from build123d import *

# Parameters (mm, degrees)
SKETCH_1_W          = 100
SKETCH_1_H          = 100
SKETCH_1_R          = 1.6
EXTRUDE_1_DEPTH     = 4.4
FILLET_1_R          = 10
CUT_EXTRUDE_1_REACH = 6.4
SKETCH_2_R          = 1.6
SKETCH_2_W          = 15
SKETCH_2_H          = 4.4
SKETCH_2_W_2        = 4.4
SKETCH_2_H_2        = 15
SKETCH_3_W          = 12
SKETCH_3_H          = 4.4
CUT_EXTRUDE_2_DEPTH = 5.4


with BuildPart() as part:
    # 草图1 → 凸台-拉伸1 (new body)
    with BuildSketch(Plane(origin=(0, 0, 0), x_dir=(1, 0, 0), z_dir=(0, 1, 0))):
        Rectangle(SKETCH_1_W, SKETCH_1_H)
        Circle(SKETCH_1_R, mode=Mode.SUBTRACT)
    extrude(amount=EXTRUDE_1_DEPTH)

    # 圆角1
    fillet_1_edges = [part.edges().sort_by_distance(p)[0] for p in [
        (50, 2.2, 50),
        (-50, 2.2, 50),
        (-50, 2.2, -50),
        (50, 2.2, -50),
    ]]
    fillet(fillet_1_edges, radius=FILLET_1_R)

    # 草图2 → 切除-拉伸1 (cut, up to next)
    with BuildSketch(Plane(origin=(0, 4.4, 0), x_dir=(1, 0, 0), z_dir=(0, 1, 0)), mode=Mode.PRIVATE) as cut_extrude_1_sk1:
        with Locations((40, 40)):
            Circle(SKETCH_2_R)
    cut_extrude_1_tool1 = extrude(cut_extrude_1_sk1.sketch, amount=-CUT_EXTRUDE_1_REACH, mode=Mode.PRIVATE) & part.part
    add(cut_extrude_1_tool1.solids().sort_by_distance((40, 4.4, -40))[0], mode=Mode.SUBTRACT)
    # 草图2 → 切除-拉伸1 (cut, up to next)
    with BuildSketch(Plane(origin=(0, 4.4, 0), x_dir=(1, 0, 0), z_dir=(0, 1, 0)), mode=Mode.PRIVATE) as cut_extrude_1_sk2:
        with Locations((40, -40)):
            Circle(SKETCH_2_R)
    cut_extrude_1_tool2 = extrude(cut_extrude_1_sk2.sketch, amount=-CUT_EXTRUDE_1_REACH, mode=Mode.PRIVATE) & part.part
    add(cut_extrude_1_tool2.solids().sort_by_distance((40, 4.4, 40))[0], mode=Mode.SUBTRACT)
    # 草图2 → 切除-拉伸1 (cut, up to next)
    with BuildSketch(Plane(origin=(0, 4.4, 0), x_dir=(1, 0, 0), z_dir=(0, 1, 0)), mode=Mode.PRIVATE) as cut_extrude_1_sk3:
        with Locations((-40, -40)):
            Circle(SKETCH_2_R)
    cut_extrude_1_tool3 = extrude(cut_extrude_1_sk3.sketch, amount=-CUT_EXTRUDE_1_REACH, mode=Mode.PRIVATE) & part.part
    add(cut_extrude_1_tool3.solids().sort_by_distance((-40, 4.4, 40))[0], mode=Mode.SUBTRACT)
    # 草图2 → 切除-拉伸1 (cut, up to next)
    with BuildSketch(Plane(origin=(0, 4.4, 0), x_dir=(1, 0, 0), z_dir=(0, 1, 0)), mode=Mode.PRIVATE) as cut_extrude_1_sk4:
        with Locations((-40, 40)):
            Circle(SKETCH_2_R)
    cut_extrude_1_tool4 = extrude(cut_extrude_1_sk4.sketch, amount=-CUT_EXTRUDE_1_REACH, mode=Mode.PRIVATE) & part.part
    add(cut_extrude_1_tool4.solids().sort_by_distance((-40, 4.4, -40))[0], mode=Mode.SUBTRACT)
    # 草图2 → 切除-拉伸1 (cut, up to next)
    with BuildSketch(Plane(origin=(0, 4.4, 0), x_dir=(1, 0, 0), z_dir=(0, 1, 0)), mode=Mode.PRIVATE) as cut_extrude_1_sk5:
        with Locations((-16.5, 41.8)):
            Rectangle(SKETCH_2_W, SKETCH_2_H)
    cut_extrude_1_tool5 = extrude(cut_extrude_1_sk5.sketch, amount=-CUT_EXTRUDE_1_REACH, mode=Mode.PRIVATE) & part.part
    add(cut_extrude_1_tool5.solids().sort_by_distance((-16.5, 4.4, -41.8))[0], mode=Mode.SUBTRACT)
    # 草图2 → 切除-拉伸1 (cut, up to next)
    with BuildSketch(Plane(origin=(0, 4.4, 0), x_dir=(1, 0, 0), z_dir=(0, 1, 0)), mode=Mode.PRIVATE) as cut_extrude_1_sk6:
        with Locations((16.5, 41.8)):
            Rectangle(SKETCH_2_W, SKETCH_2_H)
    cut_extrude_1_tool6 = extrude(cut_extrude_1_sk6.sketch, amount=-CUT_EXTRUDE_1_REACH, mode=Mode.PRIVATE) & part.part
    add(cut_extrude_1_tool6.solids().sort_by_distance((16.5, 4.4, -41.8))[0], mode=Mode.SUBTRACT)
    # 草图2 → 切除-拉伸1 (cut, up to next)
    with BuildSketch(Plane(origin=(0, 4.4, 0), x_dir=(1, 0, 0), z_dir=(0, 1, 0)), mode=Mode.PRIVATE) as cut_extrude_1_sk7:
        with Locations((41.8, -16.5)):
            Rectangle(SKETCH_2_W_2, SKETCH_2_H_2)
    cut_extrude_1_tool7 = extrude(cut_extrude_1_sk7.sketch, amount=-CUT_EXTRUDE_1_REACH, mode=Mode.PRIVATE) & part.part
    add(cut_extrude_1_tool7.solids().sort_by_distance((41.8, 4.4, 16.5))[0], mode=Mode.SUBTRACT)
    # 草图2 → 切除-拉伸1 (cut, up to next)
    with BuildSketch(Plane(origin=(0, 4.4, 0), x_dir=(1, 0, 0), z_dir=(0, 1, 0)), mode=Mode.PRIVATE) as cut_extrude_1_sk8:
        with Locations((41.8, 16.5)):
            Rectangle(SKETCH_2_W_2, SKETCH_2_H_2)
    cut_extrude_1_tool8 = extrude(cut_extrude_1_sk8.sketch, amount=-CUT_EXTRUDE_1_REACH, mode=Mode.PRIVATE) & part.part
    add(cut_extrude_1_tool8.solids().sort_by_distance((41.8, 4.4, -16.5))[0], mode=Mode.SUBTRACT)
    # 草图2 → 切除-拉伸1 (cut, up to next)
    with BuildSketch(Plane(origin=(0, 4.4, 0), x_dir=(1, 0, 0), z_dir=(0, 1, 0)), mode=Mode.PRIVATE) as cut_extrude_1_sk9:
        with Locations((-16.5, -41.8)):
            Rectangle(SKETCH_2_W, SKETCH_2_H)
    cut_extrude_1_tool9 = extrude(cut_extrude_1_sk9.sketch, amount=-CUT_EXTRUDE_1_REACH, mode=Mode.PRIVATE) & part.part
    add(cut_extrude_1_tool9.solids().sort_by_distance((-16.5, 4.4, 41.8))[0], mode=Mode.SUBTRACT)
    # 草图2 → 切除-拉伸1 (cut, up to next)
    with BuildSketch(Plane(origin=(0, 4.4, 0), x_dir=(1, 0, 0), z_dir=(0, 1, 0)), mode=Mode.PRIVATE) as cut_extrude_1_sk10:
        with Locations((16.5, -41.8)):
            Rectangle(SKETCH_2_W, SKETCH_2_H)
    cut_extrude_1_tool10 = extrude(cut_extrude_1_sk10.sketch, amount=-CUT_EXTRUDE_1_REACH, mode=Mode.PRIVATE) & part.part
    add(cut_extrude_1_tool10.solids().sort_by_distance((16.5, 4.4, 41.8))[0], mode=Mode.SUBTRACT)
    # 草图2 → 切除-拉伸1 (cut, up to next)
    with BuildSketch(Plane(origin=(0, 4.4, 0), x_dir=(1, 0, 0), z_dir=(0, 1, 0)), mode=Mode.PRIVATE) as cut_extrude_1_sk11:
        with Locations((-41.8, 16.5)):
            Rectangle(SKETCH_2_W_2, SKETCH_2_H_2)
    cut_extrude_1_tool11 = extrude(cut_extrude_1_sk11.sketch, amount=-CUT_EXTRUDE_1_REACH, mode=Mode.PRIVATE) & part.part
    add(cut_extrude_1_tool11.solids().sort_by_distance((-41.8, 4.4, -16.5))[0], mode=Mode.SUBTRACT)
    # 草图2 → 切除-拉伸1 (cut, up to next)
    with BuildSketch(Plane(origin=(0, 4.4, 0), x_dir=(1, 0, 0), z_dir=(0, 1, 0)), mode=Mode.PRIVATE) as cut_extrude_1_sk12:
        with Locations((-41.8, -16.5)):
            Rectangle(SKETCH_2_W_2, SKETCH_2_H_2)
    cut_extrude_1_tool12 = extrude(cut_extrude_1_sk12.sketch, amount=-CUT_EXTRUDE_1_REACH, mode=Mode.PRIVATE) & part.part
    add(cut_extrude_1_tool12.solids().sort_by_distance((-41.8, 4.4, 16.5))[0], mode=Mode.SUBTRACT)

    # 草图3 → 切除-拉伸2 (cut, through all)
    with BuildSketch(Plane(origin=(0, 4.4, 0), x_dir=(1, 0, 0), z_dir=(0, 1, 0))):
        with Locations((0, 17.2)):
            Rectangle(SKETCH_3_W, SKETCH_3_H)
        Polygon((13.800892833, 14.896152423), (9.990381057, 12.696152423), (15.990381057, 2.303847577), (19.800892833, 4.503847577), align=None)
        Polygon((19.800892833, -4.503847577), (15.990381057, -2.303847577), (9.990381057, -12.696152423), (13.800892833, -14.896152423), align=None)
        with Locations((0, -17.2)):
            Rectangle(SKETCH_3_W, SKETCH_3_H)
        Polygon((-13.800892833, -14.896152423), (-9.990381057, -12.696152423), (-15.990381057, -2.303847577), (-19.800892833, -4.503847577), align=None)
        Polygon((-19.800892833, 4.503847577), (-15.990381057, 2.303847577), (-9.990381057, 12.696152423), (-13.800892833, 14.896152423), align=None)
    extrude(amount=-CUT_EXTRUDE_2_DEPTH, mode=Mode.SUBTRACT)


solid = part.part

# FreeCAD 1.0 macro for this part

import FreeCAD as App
import Part
import Sketcher
Q = App.Units.Quantity


def edges_at(feature, points):
    """Names of the edges that pass closest to the given points."""
    edges = feature.Shape.Edges
    near = lambda p: min(range(len(edges)), key=lambda i: edges[i].distToShape(Part.Vertex(*p))[0])
    return sorted({f"Edge{near(p) + 1}" for p in points})


def add_polygon(sketch, points):
    """Adds a closed chain of lines whose ends are joined by coincident constraints."""
    first, n = sketch.GeometryCount, len(points)
    for a, b in zip(points, points[1:] + points[:1]):
        sketch.addGeometry(Part.LineSegment(App.Vector(*a, 0), App.Vector(*b, 0)), False)
    for i in range(n):
        sketch.addConstraint(Sketcher.Constraint("Coincident", first + i, 2, first + (i + 1) % n, 1))

doc = App.newDocument("Part")
params = doc.addObject("Spreadsheet::Sheet", "Params")
for row, (alias, value) in enumerate([
    ("sketch1_diameter", "3.2 mm"),
    ("sketch1_width", "100 mm"),
    ("pad1_length", "4.4 mm"),
    ("fillet_radius", "10 mm"),
    ("sketch2_diameter", "3.2 mm"),
    ("sketch3_diameter", "3.2 mm"),
    ("sketch4_diameter", "3.2 mm"),
    ("sketch5_diameter", "3.2 mm"),
    ("sketch6_width", "15 mm"),
    ("sketch6_height", "4.4 mm"),
    ("sketch7_width", "15 mm"),
    ("sketch7_height", "4.4 mm"),
    ("sketch8_height", "15 mm"),
    ("sketch8_width", "4.4 mm"),
    ("sketch9_height", "15 mm"),
    ("sketch9_width", "4.4 mm"),
    ("sketch10_width", "15 mm"),
    ("sketch10_height", "4.4 mm"),
    ("sketch11_width", "15 mm"),
    ("sketch11_height", "4.4 mm"),
    ("sketch12_height", "15 mm"),
    ("sketch12_width", "4.4 mm"),
    ("sketch13_height", "15 mm"),
    ("sketch13_width", "4.4 mm"),
    ("sketch14_width", "12 mm"),
    ("sketch14_length", "12 mm"),
    ("sketch14_height", "4.4 mm"),
    ("sketch14_length2", "4.4 mm"),
], start=1):
    params.set(f"A{row}", alias)
    params.set(f"B{row}", "=" + value)
    params.setAlias(f"B{row}", alias)

body = doc.addObject("PartDesign::Body", "Body")

sketch1 = body.newObject("Sketcher::SketchObject", "Sketch")
sketch1.AttachmentSupport = (doc.getObject("XZ_Plane"), [""])
sketch1.MapMode = "FlatFace"
add_polygon(sketch1, [(-50, -50), (-50, 50), (50, 50), (50, -50)])
sketch1.addGeometry(Part.Circle(App.Vector(0, 0, 0), App.Vector(0, 0, 1), 1.6), False)
sketch1.addConstraint(Sketcher.Constraint("Vertical", 0))
sketch1.addConstraint(Sketcher.Constraint("Horizontal", 1))
sketch1.addConstraint(Sketcher.Constraint("Vertical", 2))
sketch1.addConstraint(Sketcher.Constraint("Horizontal", 3))
sketch1.addConstraint(Sketcher.Constraint("Coincident", 4, 3, -1, 1))
sketch1.addConstraint(Sketcher.Constraint("Symmetric", 0, 2, 2, 2, -1, 1))
sketch1.addConstraint(Sketcher.Constraint("Equal", 3, 0))
sketch1.addConstraint(Sketcher.Constraint("Diameter", 4, Q("3.2 mm")))
sketch1.addConstraint(Sketcher.Constraint("DistanceX", 1, 1, 1, 2, Q("100 mm")))
sketch1.setExpression("Constraints[11]", "Params.sketch1_diameter")
sketch1.setExpression("Constraints[12]", "Params.sketch1_width")
pad1 = body.newObject("PartDesign::Pad", "Pad")
pad1.Profile = sketch1
pad1.setExpression("Length", "Params.pad1_length")
pad1.Reversed = True
doc.recompute()

fillet = body.newObject("PartDesign::Fillet", "Fillet")
fillet.Base = (pad1, edges_at(pad1, [
    (50, 2.2, 50),
    (-50, 2.2, 50),
    (-50, 2.2, -50),
    (50, 2.2, -50),
]))
fillet.setExpression("Radius", "Params.fillet_radius")

sketch2 = body.newObject("Sketcher::SketchObject", "Sketch001")
sketch2.AttachmentSupport = (doc.getObject("XZ_Plane"), [""])
sketch2.MapMode = "FlatFace"
sketch2.AttachmentOffset = App.Placement(App.Vector(0, 0, -4.4), App.Rotation())
sketch2.addGeometry(Part.Circle(App.Vector(40, -40, 0), App.Vector(0, 0, 1), 1.6), False)
sketch2.addConstraint(Sketcher.Constraint("Diameter", 0, Q("3.2 mm")))
sketch2.addConstraint(Sketcher.Constraint("DistanceX", -1, 1, 0, 3, Q("40 mm")))
sketch2.addConstraint(Sketcher.Constraint("DistanceY", 0, 3, -1, 1, Q("40 mm")))
sketch2.setExpression("Constraints[0]", "Params.sketch2_diameter")
pocket1 = body.newObject("PartDesign::Pocket", "Pocket")
pocket1.Profile = sketch2
pocket1.Type = "UpToFirst"
pocket1.Reversed = True

sketch3 = body.newObject("Sketcher::SketchObject", "Sketch002")
sketch3.AttachmentSupport = (doc.getObject("XZ_Plane"), [""])
sketch3.MapMode = "FlatFace"
sketch3.AttachmentOffset = App.Placement(App.Vector(0, 0, -4.4), App.Rotation())
sketch3.addGeometry(Part.Circle(App.Vector(40, 40, 0), App.Vector(0, 0, 1), 1.6), False)
sketch3.addConstraint(Sketcher.Constraint("Diameter", 0, Q("3.2 mm")))
sketch3.addConstraint(Sketcher.Constraint("DistanceX", -1, 1, 0, 3, Q("40 mm")))
sketch3.addConstraint(Sketcher.Constraint("DistanceY", -1, 1, 0, 3, Q("40 mm")))
sketch3.setExpression("Constraints[0]", "Params.sketch3_diameter")
pocket2 = body.newObject("PartDesign::Pocket", "Pocket001")
pocket2.Profile = sketch3
pocket2.Type = "UpToFirst"
pocket2.Reversed = True

sketch4 = body.newObject("Sketcher::SketchObject", "Sketch003")
sketch4.AttachmentSupport = (doc.getObject("XZ_Plane"), [""])
sketch4.MapMode = "FlatFace"
sketch4.AttachmentOffset = App.Placement(App.Vector(0, 0, -4.4), App.Rotation())
sketch4.addGeometry(Part.Circle(App.Vector(-40, 40, 0), App.Vector(0, 0, 1), 1.6), False)
sketch4.addConstraint(Sketcher.Constraint("Diameter", 0, Q("3.2 mm")))
sketch4.addConstraint(Sketcher.Constraint("DistanceX", 0, 3, -1, 1, Q("40 mm")))
sketch4.addConstraint(Sketcher.Constraint("DistanceY", -1, 1, 0, 3, Q("40 mm")))
sketch4.setExpression("Constraints[0]", "Params.sketch4_diameter")
pocket3 = body.newObject("PartDesign::Pocket", "Pocket002")
pocket3.Profile = sketch4
pocket3.Type = "UpToFirst"
pocket3.Reversed = True

sketch5 = body.newObject("Sketcher::SketchObject", "Sketch004")
sketch5.AttachmentSupport = (doc.getObject("XZ_Plane"), [""])
sketch5.MapMode = "FlatFace"
sketch5.AttachmentOffset = App.Placement(App.Vector(0, 0, -4.4), App.Rotation())
sketch5.addGeometry(Part.Circle(App.Vector(-40, -40, 0), App.Vector(0, 0, 1), 1.6), False)
sketch5.addConstraint(Sketcher.Constraint("Diameter", 0, Q("3.2 mm")))
sketch5.addConstraint(Sketcher.Constraint("DistanceX", 0, 3, -1, 1, Q("40 mm")))
sketch5.addConstraint(Sketcher.Constraint("DistanceY", 0, 3, -1, 1, Q("40 mm")))
sketch5.setExpression("Constraints[0]", "Params.sketch5_diameter")
pocket4 = body.newObject("PartDesign::Pocket", "Pocket003")
pocket4.Profile = sketch5
pocket4.Type = "UpToFirst"
pocket4.Reversed = True

sketch6 = body.newObject("Sketcher::SketchObject", "Sketch005")
sketch6.AttachmentSupport = (doc.getObject("XZ_Plane"), [""])
sketch6.MapMode = "FlatFace"
sketch6.AttachmentOffset = App.Placement(App.Vector(0, 0, -4.4), App.Rotation())
add_polygon(sketch6, [(-24, -44), (-24, -39.6), (-9, -39.6), (-9, -44)])
sketch6.addConstraint(Sketcher.Constraint("Vertical", 0))
sketch6.addConstraint(Sketcher.Constraint("Horizontal", 1))
sketch6.addConstraint(Sketcher.Constraint("Vertical", 2))
sketch6.addConstraint(Sketcher.Constraint("Horizontal", 3))
sketch6.addConstraint(Sketcher.Constraint("DistanceX", 1, 1, 1, 2, Q("15 mm")))
sketch6.addConstraint(Sketcher.Constraint("DistanceY", 0, 1, 0, 2, Q("4.4 mm")))
sketch6.addConstraint(Sketcher.Constraint("DistanceX", 0, 2, -1, 1, Q("24 mm")))
sketch6.addConstraint(Sketcher.Constraint("DistanceY", 2, 2, -1, 1, Q("44 mm")))
sketch6.setExpression("Constraints[8]", "Params.sketch6_width")
sketch6.setExpression("Constraints[9]", "Params.sketch6_height")
pocket5 = body.newObject("PartDesign::Pocket", "Pocket004")
pocket5.Profile = sketch6
pocket5.Type = "UpToFirst"
pocket5.Reversed = True

sketch7 = body.newObject("Sketcher::SketchObject", "Sketch006")
sketch7.AttachmentSupport = (doc.getObject("XZ_Plane"), [""])
sketch7.MapMode = "FlatFace"
sketch7.AttachmentOffset = App.Placement(App.Vector(0, 0, -4.4), App.Rotation())
add_polygon(sketch7, [(9, -44), (9, -39.6), (24, -39.6), (24, -44)])
sketch7.addConstraint(Sketcher.Constraint("Vertical", 0))
sketch7.addConstraint(Sketcher.Constraint("Horizontal", 1))
sketch7.addConstraint(Sketcher.Constraint("Vertical", 2))
sketch7.addConstraint(Sketcher.Constraint("Horizontal", 3))
sketch7.addConstraint(Sketcher.Constraint("DistanceX", 1, 1, 1, 2, Q("15 mm")))
sketch7.addConstraint(Sketcher.Constraint("DistanceY", 0, 1, 0, 2, Q("4.4 mm")))
sketch7.addConstraint(Sketcher.Constraint("DistanceX", -1, 1, 0, 2, Q("9 mm")))
sketch7.addConstraint(Sketcher.Constraint("DistanceY", 2, 2, -1, 1, Q("44 mm")))
sketch7.setExpression("Constraints[8]", "Params.sketch7_width")
sketch7.setExpression("Constraints[9]", "Params.sketch7_height")
pocket6 = body.newObject("PartDesign::Pocket", "Pocket005")
pocket6.Profile = sketch7
pocket6.Type = "UpToFirst"
pocket6.Reversed = True

sketch8 = body.newObject("Sketcher::SketchObject", "Sketch007")
sketch8.AttachmentSupport = (doc.getObject("XZ_Plane"), [""])
sketch8.MapMode = "FlatFace"
sketch8.AttachmentOffset = App.Placement(App.Vector(0, 0, -4.4), App.Rotation())
add_polygon(sketch8, [(39.6, 9), (39.6, 24), (44, 24), (44, 9)])
sketch8.addConstraint(Sketcher.Constraint("Vertical", 0))
sketch8.addConstraint(Sketcher.Constraint("Horizontal", 1))
sketch8.addConstraint(Sketcher.Constraint("Vertical", 2))
sketch8.addConstraint(Sketcher.Constraint("Horizontal", 3))
sketch8.addConstraint(Sketcher.Constraint("DistanceY", 0, 1, 0, 2, Q("15 mm")))
sketch8.addConstraint(Sketcher.Constraint("DistanceX", 1, 1, 1, 2, Q("4.4 mm")))
sketch8.addConstraint(Sketcher.Constraint("DistanceY", -1, 1, 0, 2, Q("24 mm")))
sketch8.addConstraint(Sketcher.Constraint("DistanceX", -1, 1, 1, 2, Q("44 mm")))
sketch8.setExpression("Constraints[8]", "Params.sketch8_height")
sketch8.setExpression("Constraints[9]", "Params.sketch8_width")
pocket7 = body.newObject("PartDesign::Pocket", "Pocket006")
pocket7.Profile = sketch8
pocket7.Type = "UpToFirst"
pocket7.Reversed = True

sketch9 = body.newObject("Sketcher::SketchObject", "Sketch008")
sketch9.AttachmentSupport = (doc.getObject("XZ_Plane"), [""])
sketch9.MapMode = "FlatFace"
sketch9.AttachmentOffset = App.Placement(App.Vector(0, 0, -4.4), App.Rotation())
add_polygon(sketch9, [(39.6, -24), (39.6, -9), (44, -9), (44, -24)])
sketch9.addConstraint(Sketcher.Constraint("Vertical", 0))
sketch9.addConstraint(Sketcher.Constraint("Horizontal", 1))
sketch9.addConstraint(Sketcher.Constraint("Vertical", 2))
sketch9.addConstraint(Sketcher.Constraint("Horizontal", 3))
sketch9.addConstraint(Sketcher.Constraint("DistanceY", 0, 1, 0, 2, Q("15 mm")))
sketch9.addConstraint(Sketcher.Constraint("DistanceX", 1, 1, 1, 2, Q("4.4 mm")))
sketch9.addConstraint(Sketcher.Constraint("DistanceY", 0, 2, -1, 1, Q("9 mm")))
sketch9.addConstraint(Sketcher.Constraint("DistanceX", -1, 1, 1, 2, Q("44 mm")))
sketch9.setExpression("Constraints[8]", "Params.sketch9_height")
sketch9.setExpression("Constraints[9]", "Params.sketch9_width")
pocket8 = body.newObject("PartDesign::Pocket", "Pocket007")
pocket8.Profile = sketch9
pocket8.Type = "UpToFirst"
pocket8.Reversed = True

sketch10 = body.newObject("Sketcher::SketchObject", "Sketch009")
sketch10.AttachmentSupport = (doc.getObject("XZ_Plane"), [""])
sketch10.MapMode = "FlatFace"
sketch10.AttachmentOffset = App.Placement(App.Vector(0, 0, -4.4), App.Rotation())
add_polygon(sketch10, [(-24, 39.6), (-24, 44), (-9, 44), (-9, 39.6)])
sketch10.addConstraint(Sketcher.Constraint("Vertical", 0))
sketch10.addConstraint(Sketcher.Constraint("Horizontal", 1))
sketch10.addConstraint(Sketcher.Constraint("Vertical", 2))
sketch10.addConstraint(Sketcher.Constraint("Horizontal", 3))
sketch10.addConstraint(Sketcher.Constraint("DistanceX", 1, 1, 1, 2, Q("15 mm")))
sketch10.addConstraint(Sketcher.Constraint("DistanceY", 0, 1, 0, 2, Q("4.4 mm")))
sketch10.addConstraint(Sketcher.Constraint("DistanceX", 0, 2, -1, 1, Q("24 mm")))
sketch10.addConstraint(Sketcher.Constraint("DistanceY", -1, 1, 0, 2, Q("44 mm")))
sketch10.setExpression("Constraints[8]", "Params.sketch10_width")
sketch10.setExpression("Constraints[9]", "Params.sketch10_height")
pocket9 = body.newObject("PartDesign::Pocket", "Pocket008")
pocket9.Profile = sketch10
pocket9.Type = "UpToFirst"
pocket9.Reversed = True

sketch11 = body.newObject("Sketcher::SketchObject", "Sketch010")
sketch11.AttachmentSupport = (doc.getObject("XZ_Plane"), [""])
sketch11.MapMode = "FlatFace"
sketch11.AttachmentOffset = App.Placement(App.Vector(0, 0, -4.4), App.Rotation())
add_polygon(sketch11, [(9, 39.6), (9, 44), (24, 44), (24, 39.6)])
sketch11.addConstraint(Sketcher.Constraint("Vertical", 0))
sketch11.addConstraint(Sketcher.Constraint("Horizontal", 1))
sketch11.addConstraint(Sketcher.Constraint("Vertical", 2))
sketch11.addConstraint(Sketcher.Constraint("Horizontal", 3))
sketch11.addConstraint(Sketcher.Constraint("DistanceX", 1, 1, 1, 2, Q("15 mm")))
sketch11.addConstraint(Sketcher.Constraint("DistanceY", 0, 1, 0, 2, Q("4.4 mm")))
sketch11.addConstraint(Sketcher.Constraint("DistanceX", -1, 1, 0, 2, Q("9 mm")))
sketch11.addConstraint(Sketcher.Constraint("DistanceY", -1, 1, 0, 2, Q("44 mm")))
sketch11.setExpression("Constraints[8]", "Params.sketch11_width")
sketch11.setExpression("Constraints[9]", "Params.sketch11_height")
pocket10 = body.newObject("PartDesign::Pocket", "Pocket009")
pocket10.Profile = sketch11
pocket10.Type = "UpToFirst"
pocket10.Reversed = True

sketch12 = body.newObject("Sketcher::SketchObject", "Sketch011")
sketch12.AttachmentSupport = (doc.getObject("XZ_Plane"), [""])
sketch12.MapMode = "FlatFace"
sketch12.AttachmentOffset = App.Placement(App.Vector(0, 0, -4.4), App.Rotation())
add_polygon(sketch12, [(-44, -24), (-44, -9), (-39.6, -9), (-39.6, -24)])
sketch12.addConstraint(Sketcher.Constraint("Vertical", 0))
sketch12.addConstraint(Sketcher.Constraint("Horizontal", 1))
sketch12.addConstraint(Sketcher.Constraint("Vertical", 2))
sketch12.addConstraint(Sketcher.Constraint("Horizontal", 3))
sketch12.addConstraint(Sketcher.Constraint("DistanceY", 0, 1, 0, 2, Q("15 mm")))
sketch12.addConstraint(Sketcher.Constraint("DistanceX", 1, 1, 1, 2, Q("4.4 mm")))
sketch12.addConstraint(Sketcher.Constraint("DistanceX", 0, 2, -1, 1, Q("44 mm")))
sketch12.addConstraint(Sketcher.Constraint("DistanceY", 0, 2, -1, 1, Q("9 mm")))
sketch12.setExpression("Constraints[8]", "Params.sketch12_height")
sketch12.setExpression("Constraints[9]", "Params.sketch12_width")
pocket11 = body.newObject("PartDesign::Pocket", "Pocket010")
pocket11.Profile = sketch12
pocket11.Type = "UpToFirst"
pocket11.Reversed = True

sketch13 = body.newObject("Sketcher::SketchObject", "Sketch012")
sketch13.AttachmentSupport = (doc.getObject("XZ_Plane"), [""])
sketch13.MapMode = "FlatFace"
sketch13.AttachmentOffset = App.Placement(App.Vector(0, 0, -4.4), App.Rotation())
add_polygon(sketch13, [(-44, 9), (-44, 24), (-39.6, 24), (-39.6, 9)])
sketch13.addConstraint(Sketcher.Constraint("Vertical", 0))
sketch13.addConstraint(Sketcher.Constraint("Horizontal", 1))
sketch13.addConstraint(Sketcher.Constraint("Vertical", 2))
sketch13.addConstraint(Sketcher.Constraint("Horizontal", 3))
sketch13.addConstraint(Sketcher.Constraint("DistanceY", 0, 1, 0, 2, Q("15 mm")))
sketch13.addConstraint(Sketcher.Constraint("DistanceX", 1, 1, 1, 2, Q("4.4 mm")))
sketch13.addConstraint(Sketcher.Constraint("DistanceX", 0, 2, -1, 1, Q("44 mm")))
sketch13.addConstraint(Sketcher.Constraint("DistanceY", -1, 1, 0, 2, Q("24 mm")))
sketch13.setExpression("Constraints[8]", "Params.sketch13_height")
sketch13.setExpression("Constraints[9]", "Params.sketch13_width")
pocket12 = body.newObject("PartDesign::Pocket", "Pocket011")
pocket12.Profile = sketch13
pocket12.Type = "UpToFirst"
pocket12.Reversed = True

sketch14 = body.newObject("Sketcher::SketchObject", "Sketch013")
sketch14.AttachmentSupport = (doc.getObject("XZ_Plane"), [""])
sketch14.MapMode = "FlatFace"
sketch14.AttachmentOffset = App.Placement(App.Vector(0, 0, -4.4), App.Rotation())
add_polygon(sketch14, [(-6, -19.4), (-6, -15), (6, -15), (6, -19.4)])
add_polygon(sketch14, [(13.8, -14.9), (10, -12.7), (16, -2.3), (19.8, -4.5)])
add_polygon(sketch14, [(19.8, 4.5), (16, 2.3), (10, 12.7), (13.8, 14.9)])
add_polygon(sketch14, [(-6, 15), (-6, 19.4), (6, 19.4), (6, 15)])
add_polygon(sketch14, [(-13.8, 14.9), (-10, 12.7), (-16, 2.3), (-19.8, 4.5)])
add_polygon(sketch14, [(-19.8, -4.5), (-16, -2.3), (-10, -12.7), (-13.8, -14.9)])
sketch14.addConstraint(Sketcher.Constraint("Vertical", 0))
sketch14.addConstraint(Sketcher.Constraint("Horizontal", 1))
sketch14.addConstraint(Sketcher.Constraint("Vertical", 2))
sketch14.addConstraint(Sketcher.Constraint("Horizontal", 3))
sketch14.addConstraint(Sketcher.Constraint("Vertical", 12))
sketch14.addConstraint(Sketcher.Constraint("Horizontal", 13))
sketch14.addConstraint(Sketcher.Constraint("Vertical", 14))
sketch14.addConstraint(Sketcher.Constraint("Horizontal", 15))
sketch14.addConstraint(Sketcher.Constraint("Symmetric", 2, 2, 12, 2, -1, 1))
sketch14.addConstraint(Sketcher.Constraint("Symmetric", 0, 2, 14, 2, -1, 1))
sketch14.addConstraint(Sketcher.Constraint("Symmetric", 4, 2, 16, 2, -1, 1))
sketch14.addConstraint(Sketcher.Constraint("Symmetric", 5, 2, 17, 2, -1, 1))
sketch14.addConstraint(Sketcher.Constraint("Symmetric", 6, 2, 18, 2, -1, 1))
sketch14.addConstraint(Sketcher.Constraint("Symmetric", 7, 2, 19, 2, -1, 1))
sketch14.addConstraint(Sketcher.Constraint("Symmetric", 8, 2, 20, 2, -1, 1))
sketch14.addConstraint(Sketcher.Constraint("Symmetric", 9, 2, 21, 2, -1, 1))
sketch14.addConstraint(Sketcher.Constraint("Symmetric", 10, 2, 22, 2, -1, 1))
sketch14.addConstraint(Sketcher.Constraint("Symmetric", 11, 2, 23, 2, -1, 1))
sketch14.addConstraint(Sketcher.Constraint("Symmetric", 9, 2, 16, 2, -2))
sketch14.addConstraint(Sketcher.Constraint("Symmetric", 8, 2, 17, 2, -2))
sketch14.addConstraint(Sketcher.Constraint("Symmetric", 11, 2, 18, 2, -2))
sketch14.addConstraint(Sketcher.Constraint("Symmetric", 10, 2, 19, 2, -2))
sketch14.addConstraint(Sketcher.Constraint("Perpendicular", 4, 5))
sketch14.addConstraint(Sketcher.Constraint("Perpendicular", 5, 6))
sketch14.addConstraint(Sketcher.Constraint("Perpendicular", 6, 7))
sketch14.addConstraint(Sketcher.Constraint("Vertical", 3, 2, 12, 2))
sketch14.addConstraint(Sketcher.Constraint("DistanceX", 1, 1, 1, 2, Q("12 mm")))
sketch14.addConstraint(Sketcher.Constraint("Angle", 4, Q("150 deg")))
sketch14.addConstraint(Sketcher.Constraint("Distance", 5, Q("12 mm")))
sketch14.addConstraint(Sketcher.Constraint("DistanceY", 0, 1, 0, 2, Q("4.4 mm")))
sketch14.addConstraint(Sketcher.Constraint("DistanceY", 0, 2, -1, 1, Q("15 mm")))
sketch14.addConstraint(Sketcher.Constraint("DistanceY", 4, 2, 8, 2, Q("15 mm")))
sketch14.addConstraint(Sketcher.Constraint("Distance", 4, Q("4.4 mm")))
sketch14.addConstraint(Sketcher.Constraint("DistanceX", -1, 1, 4, 2, Q("9.990381 mm")))
sketch14.setExpression("Constraints[50]", "Params.sketch14_width")
sketch14.setExpression("Constraints[52]", "Params.sketch14_length")
sketch14.setExpression("Constraints[53]", "Params.sketch14_height")
sketch14.setExpression("Constraints[56]", "Params.sketch14_length2")
pocket13 = body.newObject("PartDesign::Pocket", "Pocket012")
pocket13.Profile = sketch14
pocket13.Type = "ThroughAll"
pocket13.Reversed = True

doc.recompute()
